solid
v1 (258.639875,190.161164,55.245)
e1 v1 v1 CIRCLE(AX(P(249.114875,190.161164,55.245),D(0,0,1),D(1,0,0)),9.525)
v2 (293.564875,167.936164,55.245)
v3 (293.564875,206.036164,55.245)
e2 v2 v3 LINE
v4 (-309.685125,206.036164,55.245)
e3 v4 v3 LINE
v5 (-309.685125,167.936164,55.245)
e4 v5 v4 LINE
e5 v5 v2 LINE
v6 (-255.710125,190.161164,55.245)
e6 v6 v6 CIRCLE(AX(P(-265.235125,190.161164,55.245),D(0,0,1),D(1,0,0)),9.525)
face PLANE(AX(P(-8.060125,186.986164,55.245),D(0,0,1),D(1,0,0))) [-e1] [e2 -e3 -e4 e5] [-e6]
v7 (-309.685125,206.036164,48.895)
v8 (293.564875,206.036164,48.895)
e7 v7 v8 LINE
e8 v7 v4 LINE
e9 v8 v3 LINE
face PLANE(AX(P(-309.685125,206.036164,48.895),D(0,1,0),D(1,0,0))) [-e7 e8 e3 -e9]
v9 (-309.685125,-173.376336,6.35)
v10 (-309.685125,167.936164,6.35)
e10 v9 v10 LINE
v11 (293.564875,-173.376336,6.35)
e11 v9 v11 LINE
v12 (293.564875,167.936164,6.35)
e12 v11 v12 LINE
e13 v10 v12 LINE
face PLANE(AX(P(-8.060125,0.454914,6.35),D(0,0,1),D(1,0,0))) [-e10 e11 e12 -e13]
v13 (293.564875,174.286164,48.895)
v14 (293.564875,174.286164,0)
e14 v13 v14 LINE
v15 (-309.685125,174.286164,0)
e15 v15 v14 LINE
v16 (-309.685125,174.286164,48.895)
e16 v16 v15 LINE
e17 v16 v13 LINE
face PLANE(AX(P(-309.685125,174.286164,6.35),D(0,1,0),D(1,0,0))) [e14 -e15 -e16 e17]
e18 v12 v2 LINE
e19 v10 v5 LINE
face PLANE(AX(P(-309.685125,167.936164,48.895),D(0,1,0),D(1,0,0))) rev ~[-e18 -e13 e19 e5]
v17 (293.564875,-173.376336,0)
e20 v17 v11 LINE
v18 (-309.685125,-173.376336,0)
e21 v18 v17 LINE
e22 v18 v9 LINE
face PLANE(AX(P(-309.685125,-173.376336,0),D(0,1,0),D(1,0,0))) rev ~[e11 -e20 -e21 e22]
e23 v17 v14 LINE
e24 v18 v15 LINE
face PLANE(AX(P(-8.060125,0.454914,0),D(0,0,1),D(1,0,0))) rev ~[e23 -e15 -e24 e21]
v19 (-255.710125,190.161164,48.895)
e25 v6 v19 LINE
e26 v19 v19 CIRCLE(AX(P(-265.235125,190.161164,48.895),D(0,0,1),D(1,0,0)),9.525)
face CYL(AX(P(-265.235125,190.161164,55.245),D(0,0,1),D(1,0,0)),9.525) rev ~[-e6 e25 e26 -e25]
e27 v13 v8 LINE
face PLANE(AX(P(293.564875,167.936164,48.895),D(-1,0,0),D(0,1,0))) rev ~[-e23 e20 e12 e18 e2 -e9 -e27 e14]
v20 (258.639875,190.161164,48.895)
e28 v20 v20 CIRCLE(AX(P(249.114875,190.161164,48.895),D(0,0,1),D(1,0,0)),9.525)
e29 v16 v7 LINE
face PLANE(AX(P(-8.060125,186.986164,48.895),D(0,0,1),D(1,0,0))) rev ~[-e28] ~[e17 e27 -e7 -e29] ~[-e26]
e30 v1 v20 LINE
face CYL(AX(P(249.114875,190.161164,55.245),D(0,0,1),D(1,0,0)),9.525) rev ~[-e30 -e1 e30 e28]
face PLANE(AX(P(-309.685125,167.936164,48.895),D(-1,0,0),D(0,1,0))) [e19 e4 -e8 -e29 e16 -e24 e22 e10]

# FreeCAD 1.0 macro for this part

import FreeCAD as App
import Part
import Sketcher
Q = App.Units.Quantity


def add_polygon(sketch, points):
    """Adds a closed chain of lines whose ends are joined by coincident constraints."""
    first, n = sketch.GeometryCount, len(points)
    for a, b in zip(points, points[1:] + points[:1]):
        sketch.addGeometry(Part.LineSegment(App.Vector(*a, 0), App.Vector(*b, 0)), False)
    for i in range(n):
        sketch.addConstraint(Sketcher.Constraint("Coincident", first + i, 2, first + (i + 1) % n, 1))

doc = App.newDocument("Part")
params = doc.addObject("Spreadsheet::Sheet", "Params")
for row, (alias, value) in enumerate([
    ("sketch1_width", "23.75 in"),
    ("sketch1_height", "13.6875 in"),
    ("pad1_length", "0.25 in"),
    ("sketch2_width", "23.75 in"),
    ("sketch2_height", "0.25 in"),
    ("pad2_length", "1.675 in"),
    ("sketch3_height", "1.5 in"),
    ("sketch3_width", "23.75 in"),
    ("pad3_length", "0.25 in"),
    ("sketch4_diameter", "0.75 in"),
], start=1):
    params.set(f"A{row}", alias)
    params.set(f"B{row}", "=" + value)
    params.setAlias(f"B{row}", alias)

body = doc.addObject("PartDesign::Body", "Body")

sketch1 = body.newObject("Sketcher::SketchObject", "Sketch")
sketch1.AttachmentSupport = (doc.getObject("XY_Plane"), [""])
sketch1.MapMode = "FlatFace"
add_polygon(sketch1, [(-310, 174), (-310, -173), (294, -173), (294, 174)])
sketch1.addConstraint([
    Sketcher.Constraint("Vertical", 0),
    Sketcher.Constraint("Horizontal", 1),
    Sketcher.Constraint("Vertical", 2),
    Sketcher.Constraint("Horizontal", 3),
    Sketcher.Constraint("DistanceX", 1, 1, 1, 2, Q("23.75 in")),
    Sketcher.Constraint("DistanceY", 0, 2, 0, 1, Q("13.6875 in")),
    Sketcher.Constraint("DistanceX", 0, 2, -1, 1, 309.685125),
    Sketcher.Constraint("DistanceY", 0, 2, -1, 1, 173.376336),
])
sketch1.setExpression("Constraints[8]", "Params.sketch1_width")
sketch1.setExpression("Constraints[9]", "Params.sketch1_height")
pad1 = body.newObject("PartDesign::Pad", "Pad")
pad1.Profile = sketch1
pad1.setExpression("Length", "Params.pad1_length")

sketch2 = body.newObject("Sketcher::SketchObject", "Sketch001")
sketch2.AttachmentSupport = (doc.getObject("XY_Plane"), [""])
sketch2.MapMode = "FlatFace"
sketch2.AttachmentOffset = App.Placement(App.Vector(0, 0, 0.25 * 25.4), App.Rotation())
add_polygon(sketch2, [(-310, 174), (-310, 168), (294, 168), (294, 174)])
sketch2.addConstraint([
    Sketcher.Constraint("Vertical", 0),
    Sketcher.Constraint("Horizontal", 1),
    Sketcher.Constraint("Vertical", 2),
    Sketcher.Constraint("Horizontal", 3),
    Sketcher.Constraint("DistanceX", 1, 1, 1, 2, Q("23.75 in")),
    Sketcher.Constraint("DistanceY", 0, 2, 0, 1, Q("0.25 in")),
    Sketcher.Constraint("DistanceX", 0, 2, -1, 1, 309.685125),
    Sketcher.Constraint("DistanceY", -1, 1, 0, 2, 167.936164),
])
sketch2.setExpression("Constraints[8]", "Params.sketch2_width")
sketch2.setExpression("Constraints[9]", "Params.sketch2_height")
pad2 = body.newObject("PartDesign::Pad", "Pad001")
pad2.Profile = sketch2
pad2.setExpression("Length", "Params.pad2_length")

sketch3 = body.newObject("Sketcher::SketchObject", "Sketch002")
sketch3.AttachmentSupport = (doc.getObject("XY_Plane"), [""])
sketch3.MapMode = "FlatFace"
sketch3.AttachmentOffset = App.Placement(App.Vector(0, 0, 1.925 * 25.4), App.Rotation())
add_polygon(sketch3, [(-310, 206), (-310, 168), (294, 168), (294, 206)])
sketch3.addConstraint([
    Sketcher.Constraint("Vertical", 0),
    Sketcher.Constraint("Horizontal", 1),
    Sketcher.Constraint("Vertical", 2),
    Sketcher.Constraint("Horizontal", 3),
    Sketcher.Constraint("DistanceY", 0, 2, 0, 1, Q("1.5 in")),
    Sketcher.Constraint("DistanceX", 1, 1, 1, 2, Q("23.75 in")),
    Sketcher.Constraint("DistanceX", 0, 2, -1, 1, 309.685125),
    Sketcher.Constraint("DistanceY", -1, 1, 0, 2, 167.936164),
])
sketch3.setExpression("Constraints[8]", "Params.sketch3_height")
sketch3.setExpression("Constraints[9]", "Params.sketch3_width")
pad3 = body.newObject("PartDesign::Pad", "Pad002")
pad3.Profile = sketch3
pad3.setExpression("Length", "Params.pad3_length")

sketch4 = body.newObject("Sketcher::SketchObject", "Sketch003")
sketch4.AttachmentSupport = (doc.getObject("XY_Plane"), [""])
sketch4.MapMode = "FlatFace"
sketch4.AttachmentOffset = App.Placement(App.Vector(0, 0, 2.175 * 25.4), App.Rotation())
sketch4.addGeometry([
    Part.Circle(App.Vector(-265, 190, 0), App.Vector(0, 0, 1), 10),
    Part.Circle(App.Vector(249, 190, 0), App.Vector(0, 0, 1), 10),
], False)
sketch4.addConstraint([
    Sketcher.Constraint("Equal", 0, 1),
    Sketcher.Constraint("Horizontal", 0, 3, 1, 3),
    Sketcher.Constraint("Diameter", 0, Q("0.75 in")),
    Sketcher.Constraint("DistanceX", 0, 3, 1, 3, Q("20.25 in")),
    Sketcher.Constraint("DistanceX", 0, 3, -1, 1, 265.235125),
    Sketcher.Constraint("DistanceY", -1, 1, 0, 3, 190.161164),
])
sketch4.setExpression("Constraints[2]", "Params.sketch4_diameter")
pocket1 = body.newObject("PartDesign::Pocket", "Pocket")
pocket1.Profile = sketch4
pocket1.Type = "ThroughAll"

doc.recompute()
